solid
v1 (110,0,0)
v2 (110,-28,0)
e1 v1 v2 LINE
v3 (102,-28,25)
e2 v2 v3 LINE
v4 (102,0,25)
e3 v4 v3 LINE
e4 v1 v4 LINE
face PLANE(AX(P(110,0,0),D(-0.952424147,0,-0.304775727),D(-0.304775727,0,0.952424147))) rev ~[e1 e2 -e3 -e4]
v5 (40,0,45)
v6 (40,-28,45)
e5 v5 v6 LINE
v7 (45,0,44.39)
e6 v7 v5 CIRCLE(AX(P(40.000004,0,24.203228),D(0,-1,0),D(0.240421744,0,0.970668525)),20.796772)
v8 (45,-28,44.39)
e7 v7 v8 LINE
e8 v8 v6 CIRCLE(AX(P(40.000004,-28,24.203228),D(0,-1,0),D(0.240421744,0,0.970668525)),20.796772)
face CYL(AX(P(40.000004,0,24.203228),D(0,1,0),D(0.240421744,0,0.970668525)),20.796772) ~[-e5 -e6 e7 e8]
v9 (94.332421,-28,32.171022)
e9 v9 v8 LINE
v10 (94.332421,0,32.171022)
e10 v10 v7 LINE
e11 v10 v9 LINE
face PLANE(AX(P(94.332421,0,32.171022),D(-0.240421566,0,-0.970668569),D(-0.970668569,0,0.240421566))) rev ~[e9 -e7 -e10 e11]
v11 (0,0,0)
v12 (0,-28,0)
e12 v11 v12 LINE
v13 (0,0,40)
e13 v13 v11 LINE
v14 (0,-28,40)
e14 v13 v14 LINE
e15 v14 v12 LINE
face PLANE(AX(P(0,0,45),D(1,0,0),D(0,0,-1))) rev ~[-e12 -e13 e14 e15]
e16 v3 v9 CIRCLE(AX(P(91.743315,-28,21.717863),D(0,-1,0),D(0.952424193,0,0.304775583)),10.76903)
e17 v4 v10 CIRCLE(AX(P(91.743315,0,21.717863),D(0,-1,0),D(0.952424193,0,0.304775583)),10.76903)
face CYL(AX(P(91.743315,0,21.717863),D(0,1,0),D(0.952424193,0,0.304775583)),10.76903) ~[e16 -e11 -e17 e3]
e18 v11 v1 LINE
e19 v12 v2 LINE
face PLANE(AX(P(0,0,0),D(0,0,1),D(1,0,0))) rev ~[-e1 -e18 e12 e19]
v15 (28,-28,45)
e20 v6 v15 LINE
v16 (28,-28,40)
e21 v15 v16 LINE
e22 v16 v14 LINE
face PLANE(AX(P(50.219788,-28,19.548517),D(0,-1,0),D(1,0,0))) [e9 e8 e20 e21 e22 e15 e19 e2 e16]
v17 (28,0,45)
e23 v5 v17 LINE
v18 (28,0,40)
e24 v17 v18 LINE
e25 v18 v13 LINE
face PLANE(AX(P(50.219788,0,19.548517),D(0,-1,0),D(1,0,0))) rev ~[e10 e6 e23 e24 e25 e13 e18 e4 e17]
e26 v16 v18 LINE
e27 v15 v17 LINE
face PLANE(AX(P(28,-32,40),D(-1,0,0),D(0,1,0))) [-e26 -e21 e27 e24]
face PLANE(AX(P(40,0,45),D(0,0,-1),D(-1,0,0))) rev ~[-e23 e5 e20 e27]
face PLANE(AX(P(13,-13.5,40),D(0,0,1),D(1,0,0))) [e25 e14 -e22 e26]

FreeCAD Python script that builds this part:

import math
import FreeCAD as App
import Part
import Sketcher


def add_polygon(sketch, points):
    """Adds a closed chain of lines whose ends are joined by coincident constraints."""
    first, n = sketch.GeometryCount, len(points)
    for a, b in zip(points, points[1:] + points[:1]):
        sketch.addGeometry(Part.LineSegment(App.Vector(*a, 0), App.Vector(*b, 0)), False)
    for i in range(n):
        sketch.addConstraint(Sketcher.Constraint("Coincident", first + i, 2, first + (i + 1) % n, 1))

doc = App.newDocument("Part")
body = doc.addObject("PartDesign::Body", "Body")

# Sketch on XY plane
sketch1 = doc.addObject("Sketcher::SketchObject", "Sketch")
body.addObject(sketch1)
sketch1.AttachmentSupport = (doc.XY_Plane, [""])
sketch1.MapMode = "FlatFace"
sketch1.AttachmentOffset = App.Placement(App.Vector(0, 0, 40), App.Rotation())
add_polygon(sketch1, [(-2, 5), (-2, -32), (28, -32), (28, 5)])  # lines 0-3
sketch1.addConstraint([
    Sketcher.Constraint("Vertical", 0),
    Sketcher.Constraint("Horizontal", 1),
    Sketcher.Constraint("Vertical", 2),
    Sketcher.Constraint("Horizontal", 3),
    Sketcher.Constraint("DistanceX", 1, 1, 1, 2, 30.0),
    Sketcher.Constraint("DistanceY", 0, 2, 0, 1, 37.0),
    Sketcher.Constraint("DistanceX", 0, 2, -1, 1, 2.0),
    Sketcher.Constraint("DistanceY", 0, 2, -1, 1, 32.0),
])
pad1 = doc.addObject("PartDesign::Pad", "Pad")
body.addObject(pad1)
pad1.Profile = sketch1
pad1.Length = 13
body2 = doc.addObject("PartDesign::Body", "Body001")

# Sketch on XZ plane
sketch2 = doc.addObject("Sketcher::SketchObject", "Sketch001")
body2.addObject(sketch2)
sketch2.AttachmentSupport = (doc.getObject("XZ_Plane001"), [""])
sketch2.MapMode = "FlatFace"
sketch2.addGeometry([
    Part.LineSegment(App.Vector(0, 0, 0), App.Vector(110, 0, 0)),  # 0
    Part.LineSegment(App.Vector(110, 0, 0), App.Vector(102, 25, 0)),  # 1
    Part.ArcOfCircle(Part.Circle(App.Vector(91.743315, 21.717863, 0), App.Vector(0, 0, 1), 10.76903), math.radians(17.744663), math.radians(76.088584)),  # 2
    Part.LineSegment(App.Vector(94.332421, 32.171022, 0), App.Vector(45, 44.39, 0)),  # 3
    Part.ArcOfCircle(Part.Circle(App.Vector(40.000004, 24.203228, 0), App.Vector(0, 0, 1), 20.796772), math.radians(76.088567), math.radians(90.000011)),  # 4
    Part.LineSegment(App.Vector(40, 45, 0), App.Vector(0, 45, 0)),  # 5
    Part.LineSegment(App.Vector(0, 45, 0), App.Vector(0, 0, 0)),  # 6
], False)
sketch2.addConstraint([
    Sketcher.Constraint("Coincident", 0, 2, 1, 1),
    Sketcher.Constraint("Tangent", 1, 2, 2, 1),
    Sketcher.Constraint("Tangent", 2, 2, 3, 1),
    Sketcher.Constraint("Tangent", 3, 2, 4, 1),
    Sketcher.Constraint("Tangent", 4, 2, 5, 1),
    Sketcher.Constraint("Coincident", 5, 2, 6, 1),
    Sketcher.Constraint("Coincident", 6, 2, 0, 1),
    Sketcher.Constraint("Horizontal", 0),
    Sketcher.Constraint("Horizontal", 5),
    Sketcher.Constraint("Vertical", 6),
    Sketcher.Constraint("Coincident", 6, 2, -1, 1),
    Sketcher.Constraint("DistanceX", 0, 1, 0, 2, 110.0),
    Sketcher.Constraint("DistanceX", 5, 2, 5, 1, 40.0),
    Sketcher.Constraint("DistanceY", 6, 2, 6, 1, 45.0),
    Sketcher.Constraint("DistanceX", -1, 1, 1, 2, 102.0),
    Sketcher.Constraint("DistanceY", -1, 1, 1, 2, 25.0),
    Sketcher.Constraint("DistanceX", -1, 1, 3, 2, 45.0),
    Sketcher.Constraint("DistanceY", -1, 1, 3, 2, 44.39),
])
pad2 = doc.addObject("PartDesign::Pad", "Pad001")
body2.addObject(pad2)
pad2.Profile = sketch2
pad2.Length = 28
doc.recompute()

boolean = doc.addObject("PartDesign::Boolean", "Boolean")
body2.addObject(boolean)
boolean.Type = "Cut"
boolean.addObjects([body])

doc.recompute()
